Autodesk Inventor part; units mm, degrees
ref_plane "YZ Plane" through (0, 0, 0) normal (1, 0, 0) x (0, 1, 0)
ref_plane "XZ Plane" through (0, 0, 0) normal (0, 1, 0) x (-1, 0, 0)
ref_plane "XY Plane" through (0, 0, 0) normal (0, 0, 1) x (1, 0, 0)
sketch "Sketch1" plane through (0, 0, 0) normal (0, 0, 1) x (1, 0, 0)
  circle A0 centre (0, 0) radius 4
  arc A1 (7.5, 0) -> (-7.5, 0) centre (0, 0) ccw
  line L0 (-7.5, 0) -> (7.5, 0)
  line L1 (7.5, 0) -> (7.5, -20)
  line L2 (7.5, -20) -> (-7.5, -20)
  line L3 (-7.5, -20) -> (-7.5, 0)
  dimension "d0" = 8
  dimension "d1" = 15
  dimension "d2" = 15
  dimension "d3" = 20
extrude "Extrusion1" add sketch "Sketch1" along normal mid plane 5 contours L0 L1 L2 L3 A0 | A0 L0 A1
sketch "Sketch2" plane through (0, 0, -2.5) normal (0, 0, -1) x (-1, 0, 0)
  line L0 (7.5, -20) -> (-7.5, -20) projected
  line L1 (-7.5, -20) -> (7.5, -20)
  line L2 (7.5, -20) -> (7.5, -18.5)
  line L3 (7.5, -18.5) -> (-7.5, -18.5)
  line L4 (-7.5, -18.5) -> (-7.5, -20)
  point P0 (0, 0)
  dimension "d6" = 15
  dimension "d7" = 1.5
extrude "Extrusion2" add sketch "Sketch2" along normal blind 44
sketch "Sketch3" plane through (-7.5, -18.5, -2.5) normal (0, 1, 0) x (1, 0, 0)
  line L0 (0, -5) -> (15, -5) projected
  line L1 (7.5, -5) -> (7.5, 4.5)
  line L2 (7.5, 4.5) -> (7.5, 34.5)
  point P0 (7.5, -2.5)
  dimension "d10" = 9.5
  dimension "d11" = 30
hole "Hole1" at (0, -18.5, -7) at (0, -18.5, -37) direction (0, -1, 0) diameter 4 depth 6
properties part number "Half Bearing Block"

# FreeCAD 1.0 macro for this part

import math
import FreeCAD as App
import Part
import Sketcher

V = App.Vector
Q = App.Units.Quantity

doc = App.newDocument("Part")
body = doc.addObject("PartDesign::Body", "Body")

# Sketch on XY plane
sketch1 = body.newObject("Sketcher::SketchObject", "Sketch")
sketch1.AttachmentSupport = (doc.getObject("XY_Plane"), [""])
sketch1.MapMode = "FlatFace"
sketch1.addGeometry(Part.LineSegment(V(7.5, -20, 0), V(7.5, 0, 0)), False)
sketch1.addGeometry(Part.ArcOfCircle(Part.Circle(V(0, 0, 0), V(0, 0, 1), 7.5), math.radians(0), math.radians(180)), False)
sketch1.addGeometry(Part.LineSegment(V(-7.5, 0, 0), V(-7.5, -20, 0)), False)
sketch1.addGeometry(Part.LineSegment(V(-7.5, -20, 0), V(7.5, -20, 0)), False)
sketch1.addGeometry(Part.Circle(V(0, 0, 0), V(0, 0, 1), 4), False)
sketch1.addConstraint(Sketcher.Constraint("Tangent", 0, 2, 1, 1))
sketch1.addConstraint(Sketcher.Constraint("Tangent", 1, 2, 2, 1))
sketch1.addConstraint(Sketcher.Constraint("Coincident", 2, 2, 3, 1))
sketch1.addConstraint(Sketcher.Constraint("Coincident", 3, 2, 0, 1))
sketch1.addConstraint(Sketcher.Constraint("Vertical", 0))
sketch1.addConstraint(Sketcher.Constraint("Vertical", 2))
sketch1.addConstraint(Sketcher.Constraint("Horizontal", 3))
sketch1.addConstraint(Sketcher.Constraint("Coincident", 1, 3, -1, 1))
sketch1.addConstraint(Sketcher.Constraint("Coincident", 4, 3, -1, 1))
sketch1.addConstraint(Sketcher.Constraint("Diameter", 4, Q("8 mm")))
sketch1.addConstraint(Sketcher.Constraint("Radius", 1, Q("7.5 mm")))
sketch1.addConstraint(Sketcher.Constraint("DistanceY", 0, 1, 0, 2, Q("20 mm")))
pad1 = body.newObject("PartDesign::Pad", "Pad")
pad1.Profile = sketch1
pad1.Length = 5
pad1.Midplane = True

# Sketch on XY plane
sketch2 = body.newObject("Sketcher::SketchObject", "Sketch001")
sketch2.AttachmentSupport = (doc.getObject("XY_Plane"), [""])
sketch2.MapMode = "FlatFace"
sketch2.AttachmentOffset = App.Placement(V(0, 0, -2.5), App.Rotation())
sketch2.addGeometry(Part.LineSegment(V(7.5, -20, 0), V(-7.5, -20, 0)), False)
sketch2.addGeometry(Part.LineSegment(V(-7.5, -20, 0), V(-7.5, -18.5, 0)), False)
sketch2.addGeometry(Part.LineSegment(V(-7.5, -18.5, 0), V(7.5, -18.5, 0)), False)
sketch2.addGeometry(Part.LineSegment(V(7.5, -18.5, 0), V(7.5, -20, 0)), False)
sketch2.addConstraint(Sketcher.Constraint("Coincident", 0, 2, 1, 1))
sketch2.addConstraint(Sketcher.Constraint("Coincident", 1, 2, 2, 1))
sketch2.addConstraint(Sketcher.Constraint("Coincident", 2, 2, 3, 1))
sketch2.addConstraint(Sketcher.Constraint("Coincident", 3, 2, 0, 1))
sketch2.addConstraint(Sketcher.Constraint("Horizontal", 0))
sketch2.addConstraint(Sketcher.Constraint("Vertical", 1))
sketch2.addConstraint(Sketcher.Constraint("Horizontal", 2))
sketch2.addConstraint(Sketcher.Constraint("Vertical", 3))
sketch2.addConstraint(Sketcher.Constraint("DistanceX", 0, 2, 0, 1, Q("15 mm")))
sketch2.addConstraint(Sketcher.Constraint("DistanceY", 1, 1, 1, 2, Q("1.5 mm")))
sketch2.addConstraint(Sketcher.Constraint("DistanceY", 0, 2, -1, 1, Q("20 mm")))
sketch2.addConstraint(Sketcher.Constraint("DistanceX", 0, 2, -1, 1, Q("7.5 mm")))
pad2 = body.newObject("PartDesign::Pad", "Pad001")
pad2.Profile = sketch2
pad2.Length = 44
pad2.Reversed = True

# Sketch on XZ plane
sketch3 = body.newObject("Sketcher::SketchObject", "Sketch002")
sketch3.AttachmentSupport = (doc.getObject("XZ_Plane"), [""])
sketch3.MapMode = "FlatFace"
sketch3.AttachmentOffset = App.Placement(V(0, 0, 18.5), App.Rotation())
sketch3.addGeometry(Part.Circle(V(0, -7, 0), V(0, 0, 1), 2), False)
sketch3.addGeometry(Part.Circle(V(0, -37, 0), V(0, 0, 1), 2), False)
sketch3.addConstraint(Sketcher.Constraint("Equal", 0, 1))
sketch3.addConstraint(Sketcher.Constraint("PointOnObject", 0, 3, -2))
sketch3.addConstraint(Sketcher.Constraint("PointOnObject", 1, 3, -2))
sketch3.addConstraint(Sketcher.Constraint("Diameter", 0, Q("4 mm")))
sketch3.addConstraint(Sketcher.Constraint("DistanceY", 0, 3, -1, 1, Q("7 mm")))
sketch3.addConstraint(Sketcher.Constraint("DistanceY", 1, 3, -1, 1, Q("37 mm")))
doc.recompute()
hole = body.newObject("PartDesign::Hole", "Hole")
hole.Profile = sketch3
hole.ThreadType = "None"
hole.Diameter = 4
hole.DepthType = "Dimension"
hole.Depth = 6
hole.DrillPoint = "Flat"
hole.Reversed = True

doc.recompute()
